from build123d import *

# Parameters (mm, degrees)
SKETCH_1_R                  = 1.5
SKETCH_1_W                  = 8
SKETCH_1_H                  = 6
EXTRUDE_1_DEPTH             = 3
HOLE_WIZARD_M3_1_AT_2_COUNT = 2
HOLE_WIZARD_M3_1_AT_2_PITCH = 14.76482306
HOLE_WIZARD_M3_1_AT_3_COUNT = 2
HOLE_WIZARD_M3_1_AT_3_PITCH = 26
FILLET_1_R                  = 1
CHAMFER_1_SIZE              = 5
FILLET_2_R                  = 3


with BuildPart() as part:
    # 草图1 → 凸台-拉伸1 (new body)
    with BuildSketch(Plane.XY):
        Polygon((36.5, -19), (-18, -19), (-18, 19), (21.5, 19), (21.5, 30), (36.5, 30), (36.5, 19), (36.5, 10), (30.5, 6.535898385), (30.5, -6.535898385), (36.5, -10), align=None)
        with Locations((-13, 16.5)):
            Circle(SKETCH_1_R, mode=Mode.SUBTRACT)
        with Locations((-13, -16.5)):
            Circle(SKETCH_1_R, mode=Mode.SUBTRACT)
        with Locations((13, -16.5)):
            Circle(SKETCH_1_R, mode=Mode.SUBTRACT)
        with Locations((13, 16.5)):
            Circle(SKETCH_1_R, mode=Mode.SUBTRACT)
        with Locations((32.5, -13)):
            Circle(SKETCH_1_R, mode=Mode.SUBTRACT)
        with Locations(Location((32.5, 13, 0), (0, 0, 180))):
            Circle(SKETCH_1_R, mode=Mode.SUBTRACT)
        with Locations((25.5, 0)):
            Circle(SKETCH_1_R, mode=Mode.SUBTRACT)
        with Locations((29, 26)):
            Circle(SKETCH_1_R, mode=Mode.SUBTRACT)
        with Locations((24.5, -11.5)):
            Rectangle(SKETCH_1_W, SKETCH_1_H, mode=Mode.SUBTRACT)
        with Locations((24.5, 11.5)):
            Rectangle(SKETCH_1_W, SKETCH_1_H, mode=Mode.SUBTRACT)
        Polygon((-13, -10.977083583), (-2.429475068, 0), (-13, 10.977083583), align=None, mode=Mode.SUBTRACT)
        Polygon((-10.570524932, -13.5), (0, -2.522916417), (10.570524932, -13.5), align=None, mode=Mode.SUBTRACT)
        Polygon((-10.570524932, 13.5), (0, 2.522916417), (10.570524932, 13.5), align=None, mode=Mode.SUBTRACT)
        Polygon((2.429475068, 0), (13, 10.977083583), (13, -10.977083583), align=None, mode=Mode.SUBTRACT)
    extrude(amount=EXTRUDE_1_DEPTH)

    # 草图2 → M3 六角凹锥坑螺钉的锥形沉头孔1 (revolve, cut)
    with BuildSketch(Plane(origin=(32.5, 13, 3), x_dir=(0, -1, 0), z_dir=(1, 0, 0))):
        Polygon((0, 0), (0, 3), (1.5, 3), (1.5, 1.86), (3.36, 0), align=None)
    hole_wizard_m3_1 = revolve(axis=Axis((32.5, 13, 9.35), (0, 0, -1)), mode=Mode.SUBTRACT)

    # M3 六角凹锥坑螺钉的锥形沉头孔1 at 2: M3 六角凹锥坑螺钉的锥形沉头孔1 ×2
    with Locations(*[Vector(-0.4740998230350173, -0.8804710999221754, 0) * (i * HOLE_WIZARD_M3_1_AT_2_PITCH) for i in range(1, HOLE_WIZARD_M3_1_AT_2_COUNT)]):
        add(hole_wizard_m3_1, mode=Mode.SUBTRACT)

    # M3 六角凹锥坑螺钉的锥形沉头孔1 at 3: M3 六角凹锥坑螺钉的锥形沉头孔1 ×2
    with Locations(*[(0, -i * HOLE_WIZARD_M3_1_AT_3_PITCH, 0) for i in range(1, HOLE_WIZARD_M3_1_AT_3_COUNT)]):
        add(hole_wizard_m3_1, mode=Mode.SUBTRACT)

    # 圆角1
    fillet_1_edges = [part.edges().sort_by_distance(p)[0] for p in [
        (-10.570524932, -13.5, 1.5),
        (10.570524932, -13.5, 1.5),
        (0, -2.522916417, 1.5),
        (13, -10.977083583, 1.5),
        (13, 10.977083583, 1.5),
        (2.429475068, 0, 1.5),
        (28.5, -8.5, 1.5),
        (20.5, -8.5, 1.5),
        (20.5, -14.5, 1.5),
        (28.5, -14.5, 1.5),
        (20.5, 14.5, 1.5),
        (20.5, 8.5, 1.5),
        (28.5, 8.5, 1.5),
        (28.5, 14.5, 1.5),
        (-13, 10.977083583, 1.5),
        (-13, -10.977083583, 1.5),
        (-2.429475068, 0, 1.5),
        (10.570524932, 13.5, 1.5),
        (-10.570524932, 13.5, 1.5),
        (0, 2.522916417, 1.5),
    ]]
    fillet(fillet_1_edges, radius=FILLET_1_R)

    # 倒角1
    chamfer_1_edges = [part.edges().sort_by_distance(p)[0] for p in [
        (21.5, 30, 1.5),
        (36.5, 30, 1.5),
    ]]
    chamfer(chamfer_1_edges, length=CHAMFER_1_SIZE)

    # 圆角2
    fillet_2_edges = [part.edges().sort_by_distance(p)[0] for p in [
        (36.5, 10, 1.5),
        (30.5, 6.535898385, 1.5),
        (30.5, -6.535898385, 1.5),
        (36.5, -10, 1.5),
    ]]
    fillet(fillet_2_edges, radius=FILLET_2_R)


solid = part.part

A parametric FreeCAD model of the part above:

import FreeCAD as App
import Part
import Sketcher
Q = App.Units.Quantity


def edges_at(feature, points):
    """Names of the edges that pass closest to the given points."""
    edges = feature.Shape.Edges
    near = lambda p: min(range(len(edges)), key=lambda i: edges[i].distToShape(Part.Vertex(*p))[0])
    return sorted({f"Edge{near(p) + 1}" for p in points})


def add_polygon(sketch, points):
    """Adds a closed chain of lines whose ends are joined by coincident constraints."""
    first, n = sketch.GeometryCount, len(points)
    for a, b in zip(points, points[1:] + points[:1]):
        sketch.addGeometry(Part.LineSegment(App.Vector(*a, 0), App.Vector(*b, 0)), False)
    for i in range(n):
        sketch.addConstraint(Sketcher.Constraint("Coincident", first + i, 2, first + (i + 1) % n, 1))

doc = App.newDocument("Part")
params = doc.addObject("Spreadsheet::Sheet", "Params")
for row, (alias, value) in enumerate([
    ("sketch1_diameter", "3 mm"),
    ("sketch1_width", "15 mm"),
    ("sketch1_width2", "8 mm"),
    ("sketch1_height", "9 mm"),
    ("sketch1_height2", "20 mm"),
    ("pad1_length", "3 mm"),
    ("sketch2_height", "3 mm"),
    ("sketch2_width", "1.5 mm"),
    ("sketch2_width2", "3.36 mm"),
    ("groove_angle", "360 deg"),
    ("linearpattern_pitch", "14.764823 mm"),
    ("linearpattern2_pitch", "26 mm"),
    ("fillet_radius", "1 mm"),
    ("chamfer_size", "5 mm"),
    ("fillet2_radius", "3 mm"),
], start=1):
    params.set(f"A{row}", alias)
    params.set(f"B{row}", "=" + value)
    params.setAlias(f"B{row}", alias)

body = doc.addObject("PartDesign::Body", "Body")

# Sketch on XY plane
sketch1 = doc.addObject("Sketcher::SketchObject", "Sketch")
body.addObject(sketch1)
sketch1.AttachmentSupport = (doc.XY_Plane, [""])
sketch1.MapMode = "FlatFace"
add_polygon(sketch1, [(-18, -19), (36.5, -19), (36.5, -10), (30.5, -6.5), (30.5, 6.5), (36.5, 10), (36.5, 30), (21.5, 30), (21.5, 19), (-18, 19)])  # lines 0-9
sketch1.addGeometry(Part.Circle(App.Vector(32.5, -13, 0), App.Vector(0, 0, 1), 1.5), False)  # 10
add_polygon(sketch1, [(20.5, -14.5), (20.5, -8.5), (28.5, -8.5), (28.5, -14.5)])  # lines 11-14
sketch1.addGeometry(Part.Circle(App.Vector(13, -16.5, 0), App.Vector(0, 0, 1), 1.5), False)  # 15
sketch1.addGeometry(Part.Circle(App.Vector(25.5, 0, 0), App.Vector(0, 0, 1), 1.5), False)  # 16
add_polygon(sketch1, [(-10.6, -13.5), (0, -2.5), (10.6, -13.5)])  # lines 17-19
sketch1.addGeometry(Part.Circle(App.Vector(-13, -16.5, 0), App.Vector(0, 0, 1), 1.5), False)  # 20
add_polygon(sketch1, [(2.4, 0), (13, 11), (13, -11)])  # lines 21-23
add_polygon(sketch1, [(-13, -11), (-13, 11), (-2.4, 0)])  # lines 24-26
sketch1.addGeometry(Part.Circle(App.Vector(32.5, 13, 0), App.Vector(0, 0, 1), 1.5), False)  # 27
add_polygon(sketch1, [(20.5, 8.5), (20.5, 14.5), (28.5, 14.5), (28.5, 8.5)])  # lines 28-31
sketch1.addGeometry(Part.Circle(App.Vector(29, 26, 0), App.Vector(0, 0, 1), 1.5), False)  # 32
sketch1.addGeometry(Part.Circle(App.Vector(13, 16.5, 0), App.Vector(0, 0, 1), 1.5), False)  # 33
add_polygon(sketch1, [(-10.6, 13.5), (10.6, 13.5), (0, 2.5)])  # lines 34-36
sketch1.addGeometry(Part.Circle(App.Vector(-13, 16.5, 0), App.Vector(0, 0, 1), 1.5), False)  # 37
sketch1.addConstraint(Sketcher.Constraint("Horizontal", 0))
sketch1.addConstraint(Sketcher.Constraint("Vertical", 1))
sketch1.addConstraint(Sketcher.Constraint("Vertical", 3))
sketch1.addConstraint(Sketcher.Constraint("Vertical", 5))
sketch1.addConstraint(Sketcher.Constraint("Horizontal", 6))
sketch1.addConstraint(Sketcher.Constraint("Vertical", 7))
sketch1.addConstraint(Sketcher.Constraint("Horizontal", 8))
sketch1.addConstraint(Sketcher.Constraint("Vertical", 9))
sketch1.addConstraint(Sketcher.Constraint("Vertical", 11))
sketch1.addConstraint(Sketcher.Constraint("Horizontal", 12))
sketch1.addConstraint(Sketcher.Constraint("Vertical", 13))
sketch1.addConstraint(Sketcher.Constraint("Horizontal", 14))
sketch1.addConstraint(Sketcher.Constraint("Horizontal", 19))
sketch1.addConstraint(Sketcher.Constraint("Vertical", 22))
sketch1.addConstraint(Sketcher.Constraint("Vertical", 24))
sketch1.addConstraint(Sketcher.Constraint("Vertical", 28))
sketch1.addConstraint(Sketcher.Constraint("Horizontal", 29))
sketch1.addConstraint(Sketcher.Constraint("Vertical", 30))
sketch1.addConstraint(Sketcher.Constraint("Horizontal", 31))
sketch1.addConstraint(Sketcher.Constraint("Horizontal", 34))
sketch1.addConstraint(Sketcher.Constraint("Equal", 10, 15))
sketch1.addConstraint(Sketcher.Constraint("Equal", 15, 16))
sketch1.addConstraint(Sketcher.Constraint("Equal", 16, 20))
sketch1.addConstraint(Sketcher.Constraint("Equal", 20, 27))
sketch1.addConstraint(Sketcher.Constraint("Equal", 27, 32))
sketch1.addConstraint(Sketcher.Constraint("Equal", 32, 33))
sketch1.addConstraint(Sketcher.Constraint("Equal", 33, 37))
sketch1.addConstraint(Sketcher.Constraint("Symmetric", 20, 3, 33, 3, -1, 1))
sketch1.addConstraint(Sketcher.Constraint("Symmetric", 15, 3, 37, 3, -1, 1))
sketch1.addConstraint(Sketcher.Constraint("Symmetric", 22, 2, 24, 2, -1, 1))
sketch1.addConstraint(Sketcher.Constraint("Symmetric", 23, 2, 25, 2, -1, 1))
sketch1.addConstraint(Sketcher.Constraint("Symmetric", 19, 2, 34, 2, -1, 1))
sketch1.addConstraint(Sketcher.Constraint("Symmetric", 17, 2, 35, 2, -1, 1))
sketch1.addConstraint(Sketcher.Constraint("Symmetric", 15, 3, 20, 3, -2))
sketch1.addConstraint(Sketcher.Constraint("Symmetric", 10, 3, 27, 3, -1))
sketch1.addConstraint(Sketcher.Constraint("Symmetric", 1, 2, 4, 2, -1))
sketch1.addConstraint(Sketcher.Constraint("Symmetric", 14, 2, 28, 2, -1))
sketch1.addConstraint(Sketcher.Constraint("Symmetric", 12, 2, 30, 2, -1))
sketch1.addConstraint(Sketcher.Constraint("PointOnObject", 16, 3, -1))
sketch1.addConstraint(Sketcher.Constraint("PointOnObject", 17, 2, -2))
sketch1.addConstraint(Sketcher.Constraint("PointOnObject", 23, 2, -1))
sketch1.addConstraint(Sketcher.Constraint("Parallel", 17, 21))
sketch1.addConstraint(Sketcher.Constraint("Parallel", 18, 23))
sketch1.addConstraint(Sketcher.Constraint("Parallel", 21, 26))
sketch1.addConstraint(Sketcher.Constraint("Parallel", 25, 36))
sketch1.addConstraint(Sketcher.Constraint("Horizontal", 21, 2, 24, 2))
sketch1.addConstraint(Sketcher.Constraint("Vertical", 33, 3, 21, 2))
sketch1.addConstraint(Sketcher.Constraint("Equal", 2, 4))
sketch1.addConstraint(Sketcher.Constraint("Equal", 18, 21))
sketch1.addConstraint(Sketcher.Constraint("Diameter", 10, Q("3 mm")))
sketch1.addConstraint(Sketcher.Constraint("DistanceX", 6, 2, 6, 1, Q("15 mm")))
sketch1.addConstraint(Sketcher.Constraint("DistanceX", 12, 1, 12, 2, Q("8 mm")))
sketch1.addConstraint(Sketcher.Constraint("DistanceY", 1, 1, 1, 2, Q("9 mm")))
sketch1.addConstraint(Sketcher.Constraint("DistanceY", 5, 1, 5, 2, Q("20 mm")))
sketch1.addConstraint(Sketcher.Constraint("DistanceY", 7, 2, 7, 1, Q("11 mm")))
sketch1.addConstraint(Sketcher.Constraint("DistanceY", 9, 2, 9, 1, Q("38 mm")))
sketch1.addConstraint(Sketcher.Constraint("DistanceY", 11, 1, 11, 2, Q("6 mm")))
sketch1.addConstraint(Sketcher.Constraint("Angle", 2, Q("150 deg")))
sketch1.addConstraint(Sketcher.Constraint("DistanceX", 0, 1, 0, 2, Q("54.5 mm")))
sketch1.addConstraint(Sketcher.Constraint("DistanceY", 10, 3, -1, 1, Q("13 mm")))
sketch1.addConstraint(Sketcher.Constraint("DistanceX", -1, 1, 15, 3, Q("13 mm")))
sketch1.addConstraint(Sketcher.Constraint("DistanceX", -1, 1, 32, 3, Q("29 mm")))
sketch1.addConstraint(Sketcher.Constraint("DistanceY", -1, 1, 32, 3, Q("26 mm")))
sketch1.addConstraint(Sketcher.Constraint("DistanceX", 8, 2, -1, 1, Q("18 mm")))
sketch1.addConstraint(Sketcher.Constraint("DistanceX", 16, 3, 10, 3, Q("7 mm")))
sketch1.addConstraint(Sketcher.Constraint("DistanceY", 15, 3, 33, 3, Q("33 mm")))
sketch1.addConstraint(Sketcher.Constraint("DistanceX", 10, 3, 0, 2, Q("4 mm")))
sketch1.addConstraint(Sketcher.Constraint("DistanceX", 2, 2, 10, 3, Q("2 mm")))
sketch1.addConstraint(Sketcher.Constraint("DistanceX", 11, 2, 16, 3, Q("5 mm")))
sketch1.addConstraint(Sketcher.Constraint("DistanceY", 15, 3, 11, 2, Q("8 mm")))
sketch1.addConstraint(Sketcher.Constraint("DistanceY", 15, 3, 18, 2, Q("3 mm")))
sketch1.addConstraint(Sketcher.Constraint("DistanceX", 19, 2, 19, 1, Q("21.14105 mm")))
sketch1.addConstraint(Sketcher.Constraint("Distance", 17, Q("15.239172 mm")))
sketch1.setExpression("Constraints[79]", "Params.sketch1_diameter")
sketch1.setExpression("Constraints[80]", "Params.sketch1_width")
sketch1.setExpression("Constraints[81]", "Params.sketch1_width2")
sketch1.setExpression("Constraints[82]", "Params.sketch1_height")
sketch1.setExpression("Constraints[83]", "Params.sketch1_height2")
pad1 = doc.addObject("PartDesign::Pad", "Pad")
body.addObject(pad1)
pad1.Profile = sketch1
pad1.setExpression("Length", "Params.pad1_length")

# Sketch on YZ plane
sketch2 = doc.addObject("Sketcher::SketchObject", "Sketch001")
body.addObject(sketch2)
sketch2.AttachmentSupport = (doc.YZ_Plane, [""])
sketch2.MapMode = "FlatFace"
sketch2.AttachmentOffset = App.Placement(App.Vector(0, 0, 32.5), App.Rotation())
add_polygon(sketch2, [(13, 0), (13, 3), (9.6, 3), (11.5, 1.1), (11.5, 0)])  # lines 0-4
sketch2.addGeometry(Part.LineSegment(App.Vector(13, 3, 0), App.Vector(13, 0, 0)), True)  # axis
sketch2.addConstraint(Sketcher.Constraint("Vertical", 0))
sketch2.addConstraint(Sketcher.Constraint("Horizontal", 1))
sketch2.addConstraint(Sketcher.Constraint("Vertical", 3))
sketch2.addConstraint(Sketcher.Constraint("Horizontal", 4))
sketch2.addConstraint(Sketcher.Constraint("Vertical", 5))
sketch2.addConstraint(Sketcher.Constraint("Coincident", 5, 1, 0, 2))
sketch2.addConstraint(Sketcher.Constraint("PointOnObject", 3, 2, -1))
sketch2.addConstraint(Sketcher.Constraint("PointOnObject", 5, 2, -1))
sketch2.addConstraint(Sketcher.Constraint("DistanceY", 0, 1, 0, 2, Q("3 mm")))
sketch2.addConstraint(Sketcher.Constraint("Angle", 2, Q("-45 deg")))
sketch2.addConstraint(Sketcher.Constraint("DistanceX", 4, 1, 4, 2, Q("1.5 mm")))
sketch2.addConstraint(Sketcher.Constraint("DistanceX", -1, 1, 0, 2, Q("13 mm")))
sketch2.addConstraint(Sketcher.Constraint("DistanceX", 1, 2, 1, 1, Q("3.36 mm")))
sketch2.setExpression("Constraints[13]", "Params.sketch2_height")
sketch2.setExpression("Constraints[15]", "Params.sketch2_width")
sketch2.setExpression("Constraints[17]", "Params.sketch2_width2")
groove = doc.addObject("PartDesign::Groove", "Groove")
body.addObject(groove)
groove.Profile = sketch2
groove.ReferenceAxis = (sketch2, ["Axis0"])
groove.setExpression("Angle", "Params.groove_angle")
doc.recompute()

datumline = doc.addObject("PartDesign::Line", "DatumLine")
body.addObject(datumline)
datumline.Placement = App.Placement(App.Vector(0, 0, 0), App.Rotation(App.Vector(0, 0, 1), App.Vector(-0.474099823, -0.8804711, 0)))
linearpattern = doc.addObject("PartDesign::LinearPattern", "LinearPattern")
body.addObject(linearpattern)
linearpattern.Originals = [groove]
linearpattern.Direction = (datumline, [""])
linearpattern.Mode = "offset"
linearpattern.setExpression("Offset", "Params.linearpattern_pitch")
linearpattern.Occurrences = 2
body.Tip = linearpattern
doc.recompute()

linearpattern2 = doc.addObject("PartDesign::LinearPattern", "LinearPattern001")
body.addObject(linearpattern2)
linearpattern2.Originals = [groove]
linearpattern2.Direction = (doc.Y_Axis, [""])
linearpattern2.Mode = "offset"
linearpattern2.setExpression("Offset", "Params.linearpattern2_pitch")
linearpattern2.Occurrences = 2
linearpattern2.Reversed = True
body.Tip = linearpattern2
doc.recompute()

fillet = doc.addObject("PartDesign::Fillet", "Fillet")
body.addObject(fillet)
fillet.Base = (linearpattern2, edges_at(linearpattern2, [
    (-10.571, -13.5, 1.5),
    (10.571, -13.5, 1.5),
    (0, -2.523, 1.5),
    (13, -10.977, 1.5),
    (13, 10.977, 1.5),
    (2.429, 0, 1.5),
    (28.5, -8.5, 1.5),
    (20.5, -8.5, 1.5),
    (20.5, -14.5, 1.5),
    (28.5, -14.5, 1.5),
    (20.5, 14.5, 1.5),
    (20.5, 8.5, 1.5),
    (28.5, 8.5, 1.5),
    (28.5, 14.5, 1.5),
    (-13, 10.977, 1.5),
    (-13, -10.977, 1.5),
    (-2.429, 0, 1.5),
    (10.571, 13.5, 1.5),
    (-10.571, 13.5, 1.5),
    (0, 2.523, 1.5),
]))
fillet.setExpression("Radius", "Params.fillet_radius")
doc.recompute()

chamfer = doc.addObject("PartDesign::Chamfer", "Chamfer")
body.addObject(chamfer)
chamfer.Base = (fillet, edges_at(fillet, [(21.5, 30, 1.5), (36.5, 30, 1.5)]))
chamfer.setExpression("Size", "Params.chamfer_size")
doc.recompute()

fillet2 = doc.addObject("PartDesign::Fillet", "Fillet001")
body.addObject(fillet2)
fillet2.Base = (chamfer, edges_at(chamfer, [
    (36.5, 10, 1.5),
    (30.5, 6.536, 1.5),
    (30.5, -6.536, 1.5),
    (36.5, -10, 1.5),
]))
fillet2.setExpression("Radius", "Params.fillet2_radius")

doc.recompute()
